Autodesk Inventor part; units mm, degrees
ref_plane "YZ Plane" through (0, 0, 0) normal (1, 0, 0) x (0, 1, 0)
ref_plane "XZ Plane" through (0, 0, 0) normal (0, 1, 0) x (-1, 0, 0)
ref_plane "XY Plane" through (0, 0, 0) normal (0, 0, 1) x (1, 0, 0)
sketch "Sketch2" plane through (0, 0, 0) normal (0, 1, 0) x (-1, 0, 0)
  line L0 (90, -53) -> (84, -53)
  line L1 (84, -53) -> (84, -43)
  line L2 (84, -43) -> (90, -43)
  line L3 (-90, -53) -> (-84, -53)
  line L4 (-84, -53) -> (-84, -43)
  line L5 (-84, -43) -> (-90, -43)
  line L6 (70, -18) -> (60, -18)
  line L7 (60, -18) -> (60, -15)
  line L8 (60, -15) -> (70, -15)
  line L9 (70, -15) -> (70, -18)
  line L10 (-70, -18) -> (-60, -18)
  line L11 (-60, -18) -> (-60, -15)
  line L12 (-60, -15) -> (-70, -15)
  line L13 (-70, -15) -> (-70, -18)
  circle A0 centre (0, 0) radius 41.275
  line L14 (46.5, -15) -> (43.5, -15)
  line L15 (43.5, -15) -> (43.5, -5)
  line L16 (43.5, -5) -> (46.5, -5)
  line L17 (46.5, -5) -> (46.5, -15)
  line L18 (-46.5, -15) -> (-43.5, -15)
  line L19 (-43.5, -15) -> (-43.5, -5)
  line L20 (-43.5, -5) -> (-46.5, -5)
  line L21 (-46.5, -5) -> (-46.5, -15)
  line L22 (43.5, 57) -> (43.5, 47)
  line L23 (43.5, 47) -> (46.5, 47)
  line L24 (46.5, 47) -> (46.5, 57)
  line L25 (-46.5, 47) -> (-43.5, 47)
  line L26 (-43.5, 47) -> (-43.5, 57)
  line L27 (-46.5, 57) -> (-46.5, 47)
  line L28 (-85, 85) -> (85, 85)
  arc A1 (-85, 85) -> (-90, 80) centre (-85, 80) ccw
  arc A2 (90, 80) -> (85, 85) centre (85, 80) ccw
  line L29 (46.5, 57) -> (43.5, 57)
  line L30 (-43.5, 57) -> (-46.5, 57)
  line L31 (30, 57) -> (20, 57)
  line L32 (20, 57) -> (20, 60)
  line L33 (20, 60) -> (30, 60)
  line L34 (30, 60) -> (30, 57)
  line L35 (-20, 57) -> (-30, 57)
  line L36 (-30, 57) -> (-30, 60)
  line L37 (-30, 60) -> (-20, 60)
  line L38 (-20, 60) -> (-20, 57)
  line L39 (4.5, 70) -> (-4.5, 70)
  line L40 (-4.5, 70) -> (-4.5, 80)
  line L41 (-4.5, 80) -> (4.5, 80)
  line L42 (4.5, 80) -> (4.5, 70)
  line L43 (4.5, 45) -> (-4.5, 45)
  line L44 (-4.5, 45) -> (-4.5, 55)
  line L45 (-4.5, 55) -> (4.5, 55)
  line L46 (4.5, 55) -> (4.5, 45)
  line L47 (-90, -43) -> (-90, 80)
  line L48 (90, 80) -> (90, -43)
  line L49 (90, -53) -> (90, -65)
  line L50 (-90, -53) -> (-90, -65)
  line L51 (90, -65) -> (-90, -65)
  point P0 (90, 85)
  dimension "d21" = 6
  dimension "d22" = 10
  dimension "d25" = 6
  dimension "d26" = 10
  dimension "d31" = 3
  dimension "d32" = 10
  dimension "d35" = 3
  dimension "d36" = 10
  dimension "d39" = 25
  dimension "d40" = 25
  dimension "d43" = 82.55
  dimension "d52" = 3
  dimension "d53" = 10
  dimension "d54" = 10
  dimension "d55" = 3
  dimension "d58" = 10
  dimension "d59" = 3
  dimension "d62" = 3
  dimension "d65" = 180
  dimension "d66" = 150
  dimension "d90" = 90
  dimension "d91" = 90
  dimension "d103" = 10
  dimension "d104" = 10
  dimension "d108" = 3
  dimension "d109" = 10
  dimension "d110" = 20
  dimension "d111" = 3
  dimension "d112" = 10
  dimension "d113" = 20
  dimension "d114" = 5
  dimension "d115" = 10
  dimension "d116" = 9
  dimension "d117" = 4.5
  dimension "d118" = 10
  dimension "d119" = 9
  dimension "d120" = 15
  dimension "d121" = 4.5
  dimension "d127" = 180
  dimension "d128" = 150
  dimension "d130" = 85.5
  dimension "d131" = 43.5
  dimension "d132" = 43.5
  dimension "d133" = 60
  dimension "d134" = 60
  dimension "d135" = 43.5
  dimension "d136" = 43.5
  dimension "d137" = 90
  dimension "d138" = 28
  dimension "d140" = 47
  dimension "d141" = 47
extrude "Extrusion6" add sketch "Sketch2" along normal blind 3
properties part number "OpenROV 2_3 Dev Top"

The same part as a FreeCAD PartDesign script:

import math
import FreeCAD as App
import Part
import Sketcher

V = App.Vector
Q = App.Units.Quantity


def add_polygon(sketch, points):
    """Adds a closed chain of lines whose ends are joined by coincident constraints."""
    first, n = sketch.GeometryCount, len(points)
    for a, b in zip(points, points[1:] + points[:1]):
        sketch.addGeometry(Part.LineSegment(App.Vector(*a, 0), App.Vector(*b, 0)), False)
    for i in range(n):
        sketch.addConstraint(Sketcher.Constraint("Coincident", first + i, 2, first + (i + 1) % n, 1))

doc = App.newDocument("Part")
body = doc.addObject("PartDesign::Body", "Body")

# Sketch on XZ plane
sketch1 = body.newObject("Sketcher::SketchObject", "Sketch")
sketch1.AttachmentSupport = (doc.getObject("XZ_Plane"), [""])
sketch1.MapMode = "FlatFace"
sketch1.addGeometry(Part.LineSegment(V(-90, -65, 0), V(-90, -53, 0)), False)  # 0
sketch1.addGeometry(Part.LineSegment(V(-90, -53, 0), V(-84, -53, 0)), False)  # 1
sketch1.addGeometry(Part.LineSegment(V(-84, -53, 0), V(-84, -43, 0)), False)  # 2
sketch1.addGeometry(Part.LineSegment(V(-84, -43, 0), V(-90, -43, 0)), False)  # 3
sketch1.addGeometry(Part.LineSegment(V(-90, -43, 0), V(-90, 80, 0)), False)  # 4
sketch1.addGeometry(Part.ArcOfCircle(Part.Circle(V(-85, 80, 0), V(0, 0, 1), 5), math.radians(90), math.radians(180)), False)  # 5
sketch1.addGeometry(Part.LineSegment(V(-85, 85, 0), V(85, 85, 0)), False)  # 6
sketch1.addGeometry(Part.ArcOfCircle(Part.Circle(V(85, 80, 0), V(0, 0, 1), 5), math.radians(0), math.radians(90)), False)  # 7
sketch1.addGeometry(Part.LineSegment(V(90, 80, 0), V(90, -43, 0)), False)  # 8
sketch1.addGeometry(Part.LineSegment(V(90, -43, 0), V(84, -43, 0)), False)  # 9
sketch1.addGeometry(Part.LineSegment(V(84, -43, 0), V(84, -53, 0)), False)  # 10
sketch1.addGeometry(Part.LineSegment(V(84, -53, 0), V(90, -53, 0)), False)  # 11
sketch1.addGeometry(Part.LineSegment(V(90, -53, 0), V(90, -65, 0)), False)  # 12
sketch1.addGeometry(Part.LineSegment(V(90, -65, 0), V(-90, -65, 0)), False)  # 13
add_polygon(sketch1, [(60, -18), (70, -18), (70, -15), (60, -15)])  # lines 14-17
add_polygon(sketch1, [(43.5, -15), (46.5, -15), (46.5, -5), (43.5, -5)])  # lines 18-21
sketch1.addGeometry(Part.Circle(V(0, 0, 0), V(0, 0, 1), 41.3), False)  # 22
add_polygon(sketch1, [(-46.5, -5), (-46.5, -15), (-43.5, -15), (-43.5, -5)])  # lines 23-26
add_polygon(sketch1, [(-70, -15), (-70, -18), (-60, -18), (-60, -15)])  # lines 27-30
add_polygon(sketch1, [(43.5, 47), (46.5, 47), (46.5, 57), (43.5, 57)])  # lines 31-34
add_polygon(sketch1, [(20, 60), (20, 57), (30, 57), (30, 60)])  # lines 35-38
add_polygon(sketch1, [(-4.5, 55), (-4.5, 45), (4.5, 45), (4.5, 55)])  # lines 39-42
add_polygon(sketch1, [(-30, 60), (-30, 57), (-20, 57), (-20, 60)])  # lines 43-46
add_polygon(sketch1, [(-4.5, 80), (-4.5, 70), (4.5, 70), (4.5, 80)])  # lines 47-50
add_polygon(sketch1, [(-43.5, 47), (-43.5, 57), (-46.5, 57), (-46.5, 47)])  # lines 51-54
sketch1.addConstraint(Sketcher.Constraint("Coincident", 0, 2, 1, 1))
sketch1.addConstraint(Sketcher.Constraint("Coincident", 1, 2, 2, 1))
sketch1.addConstraint(Sketcher.Constraint("Coincident", 2, 2, 3, 1))
sketch1.addConstraint(Sketcher.Constraint("Coincident", 3, 2, 4, 1))
sketch1.addConstraint(Sketcher.Constraint("Tangent", 4, 2, 5, 2))
sketch1.addConstraint(Sketcher.Constraint("Tangent", 5, 1, 6, 1))
sketch1.addConstraint(Sketcher.Constraint("Tangent", 6, 2, 7, 2))
sketch1.addConstraint(Sketcher.Constraint("Tangent", 7, 1, 8, 1))
sketch1.addConstraint(Sketcher.Constraint("Coincident", 8, 2, 9, 1))
sketch1.addConstraint(Sketcher.Constraint("Coincident", 9, 2, 10, 1))
sketch1.addConstraint(Sketcher.Constraint("Coincident", 10, 2, 11, 1))
sketch1.addConstraint(Sketcher.Constraint("Coincident", 11, 2, 12, 1))
sketch1.addConstraint(Sketcher.Constraint("Coincident", 12, 2, 13, 1))
sketch1.addConstraint(Sketcher.Constraint("Coincident", 13, 2, 0, 1))
sketch1.addConstraint(Sketcher.Constraint("Vertical", 0))
sketch1.addConstraint(Sketcher.Constraint("Horizontal", 1))
sketch1.addConstraint(Sketcher.Constraint("Vertical", 2))
sketch1.addConstraint(Sketcher.Constraint("Horizontal", 3))
sketch1.addConstraint(Sketcher.Constraint("Vertical", 4))
sketch1.addConstraint(Sketcher.Constraint("Horizontal", 6))
sketch1.addConstraint(Sketcher.Constraint("Vertical", 8))
sketch1.addConstraint(Sketcher.Constraint("Horizontal", 9))
sketch1.addConstraint(Sketcher.Constraint("Vertical", 10))
sketch1.addConstraint(Sketcher.Constraint("Horizontal", 11))
sketch1.addConstraint(Sketcher.Constraint("Vertical", 12))
sketch1.addConstraint(Sketcher.Constraint("Horizontal", 13))
sketch1.addConstraint(Sketcher.Constraint("Horizontal", 14))
sketch1.addConstraint(Sketcher.Constraint("Vertical", 15))
sketch1.addConstraint(Sketcher.Constraint("Horizontal", 16))
sketch1.addConstraint(Sketcher.Constraint("Vertical", 17))
sketch1.addConstraint(Sketcher.Constraint("Horizontal", 18))
sketch1.addConstraint(Sketcher.Constraint("Vertical", 19))
sketch1.addConstraint(Sketcher.Constraint("Horizontal", 20))
sketch1.addConstraint(Sketcher.Constraint("Vertical", 21))
sketch1.addConstraint(Sketcher.Constraint("Vertical", 23))
sketch1.addConstraint(Sketcher.Constraint("Horizontal", 24))
sketch1.addConstraint(Sketcher.Constraint("Vertical", 25))
sketch1.addConstraint(Sketcher.Constraint("Horizontal", 26))
sketch1.addConstraint(Sketcher.Constraint("Vertical", 27))
sketch1.addConstraint(Sketcher.Constraint("Horizontal", 28))
sketch1.addConstraint(Sketcher.Constraint("Vertical", 29))
sketch1.addConstraint(Sketcher.Constraint("Horizontal", 30))
sketch1.addConstraint(Sketcher.Constraint("Horizontal", 31))
sketch1.addConstraint(Sketcher.Constraint("Vertical", 32))
sketch1.addConstraint(Sketcher.Constraint("Horizontal", 33))
sketch1.addConstraint(Sketcher.Constraint("Vertical", 34))
sketch1.addConstraint(Sketcher.Constraint("Vertical", 35))
sketch1.addConstraint(Sketcher.Constraint("Horizontal", 36))
sketch1.addConstraint(Sketcher.Constraint("Vertical", 37))
sketch1.addConstraint(Sketcher.Constraint("Horizontal", 38))
sketch1.addConstraint(Sketcher.Constraint("Vertical", 39))
sketch1.addConstraint(Sketcher.Constraint("Horizontal", 40))
sketch1.addConstraint(Sketcher.Constraint("Vertical", 41))
sketch1.addConstraint(Sketcher.Constraint("Horizontal", 42))
sketch1.addConstraint(Sketcher.Constraint("Vertical", 43))
sketch1.addConstraint(Sketcher.Constraint("Horizontal", 44))
sketch1.addConstraint(Sketcher.Constraint("Vertical", 45))
sketch1.addConstraint(Sketcher.Constraint("Horizontal", 46))
sketch1.addConstraint(Sketcher.Constraint("Vertical", 47))
sketch1.addConstraint(Sketcher.Constraint("Horizontal", 48))
sketch1.addConstraint(Sketcher.Constraint("Vertical", 49))
sketch1.addConstraint(Sketcher.Constraint("Horizontal", 50))
sketch1.addConstraint(Sketcher.Constraint("Vertical", 51))
sketch1.addConstraint(Sketcher.Constraint("Horizontal", 52))
sketch1.addConstraint(Sketcher.Constraint("Vertical", 53))
sketch1.addConstraint(Sketcher.Constraint("Horizontal", 54))
sketch1.addConstraint(Sketcher.Constraint("Coincident", 22, 3, -1, 1))
sketch1.addConstraint(Sketcher.Constraint("Equal", 5, 7))
sketch1.addConstraint(Sketcher.Constraint("Symmetric", 3, 2, 8, 2, -2))
sketch1.addConstraint(Sketcher.Constraint("Symmetric", 1, 2, 10, 2, -2))
sketch1.addConstraint(Sketcher.Constraint("Symmetric", 18, 2, 23, 2, -2))
sketch1.addConstraint(Sketcher.Constraint("Symmetric", 20, 2, 25, 2, -2))
sketch1.addConstraint(Sketcher.Constraint("Symmetric", 14, 2, 27, 2, -2))
sketch1.addConstraint(Sketcher.Constraint("Symmetric", 16, 2, 29, 2, -2))
sketch1.addConstraint(Sketcher.Constraint("Symmetric", 36, 2, 43, 2, -2))
sketch1.addConstraint(Sketcher.Constraint("Symmetric", 38, 2, 45, 2, -2))
sketch1.addConstraint(Sketcher.Constraint("Symmetric", 33, 2, 51, 2, -2))
sketch1.addConstraint(Sketcher.Constraint("Symmetric", 31, 2, 53, 2, -2))
sketch1.addConstraint(Sketcher.Constraint("Horizontal", 16, 2, 18, 2))
sketch1.addConstraint(Sketcher.Constraint("Horizontal", 33, 2, 35, 2))
sketch1.addConstraint(Sketcher.Constraint("Horizontal", 7, 1, 49, 2))
sketch1.addConstraint(Sketcher.Constraint("Vertical", 0, 2, 3, 2))
sketch1.addConstraint(Sketcher.Constraint("Vertical", 8, 2, 11, 2))
sketch1.addConstraint(Sketcher.Constraint("Vertical", 19, 2, 31, 2))
sketch1.addConstraint(Sketcher.Constraint("Vertical", 21, 2, 33, 2))
sketch1.addConstraint(Sketcher.Constraint("Vertical", 42, 2, 47, 2))
sketch1.addConstraint(Sketcher.Constraint("Vertical", 41, 2, 48, 2))
sketch1.addConstraint(Sketcher.Constraint("Equal", 30, 36))
sketch1.addConstraint(Sketcher.Constraint("Equal", 46, 2))
sketch1.addConstraint(Sketcher.Constraint("Equal", 54, 15))
sketch1.addConstraint(Sketcher.Constraint("Equal", 10, 19))
sketch1.addConstraint(Sketcher.Constraint("Equal", 25, 32))
sketch1.addConstraint(Sketcher.Constraint("Equal", 29, 35))
sketch1.addConstraint(Sketcher.Constraint("Equal", 34, 39))
sketch1.addConstraint(Sketcher.Constraint("Equal", 41, 47))
sketch1.addConstraint(Sketcher.Constraint("Radius", 5, Q("5 mm")))
sketch1.addConstraint(Sketcher.Constraint("Diameter", 22, Q("82.55 mm")))
sketch1.addConstraint(Sketcher.Constraint("DistanceX", 1, 1, 1, 2, Q("6 mm")))
sketch1.addConstraint(Sketcher.Constraint("DistanceX", 13, 2, 13, 1, Q("180 mm")))
sketch1.addConstraint(Sketcher.Constraint("DistanceX", 14, 1, 14, 2, Q("10 mm")))
sketch1.addConstraint(Sketcher.Constraint("DistanceX", 18, 1, 18, 2, Q("3 mm")))
sketch1.addConstraint(Sketcher.Constraint("DistanceX", 40, 1, 40, 2, Q("9 mm")))
sketch1.addConstraint(Sketcher.Constraint("DistanceY", 15, 2, -1, 1, Q("15 mm")))
sketch1.addConstraint(Sketcher.Constraint("DistanceX", -1, 1, 16, 2, Q("60 mm")))
sketch1.addConstraint(Sketcher.Constraint("DistanceY", -1, 1, 31, 2, Q("47 mm")))
sketch1.addConstraint(Sketcher.Constraint("DistanceX", -1, 1, 35, 2, Q("20 mm")))
sketch1.addConstraint(Sketcher.Constraint("DistanceY", 9, 2, 14, 2, Q("25 mm")))
sketch1.addConstraint(Sketcher.Constraint("DistanceY", 12, 2, 14, 2, Q("47 mm")))
sketch1.addConstraint(Sketcher.Constraint("DistanceY", 32, 2, 6, 2, Q("28 mm")))
sketch1.addConstraint(Sketcher.Constraint("DistanceY", 39, 2, 38, 2, Q("15 mm")))
sketch1.addConstraint(Sketcher.Constraint("DistanceX", -1, 1, 20, 2, Q("43.5 mm")))
sketch1.addConstraint(Sketcher.Constraint("DistanceX", 39, 2, -1, 1, Q("4.5 mm")))
pad1 = body.newObject("PartDesign::Pad", "Pad")
pad1.Profile = sketch1
pad1.Length = 3
pad1.Reversed = True

doc.recompute()
